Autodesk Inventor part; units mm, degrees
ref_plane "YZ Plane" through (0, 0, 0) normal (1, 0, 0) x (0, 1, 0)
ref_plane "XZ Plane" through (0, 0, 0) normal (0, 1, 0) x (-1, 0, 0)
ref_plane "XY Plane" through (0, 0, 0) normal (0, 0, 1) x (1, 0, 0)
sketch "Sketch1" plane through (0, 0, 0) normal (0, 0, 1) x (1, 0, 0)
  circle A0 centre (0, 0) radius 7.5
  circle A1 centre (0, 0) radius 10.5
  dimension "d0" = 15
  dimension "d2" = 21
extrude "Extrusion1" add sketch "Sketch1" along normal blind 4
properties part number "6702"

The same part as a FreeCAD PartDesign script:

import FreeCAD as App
import Part
import Sketcher
from FreeCAD import Vector

doc = App.newDocument("Part")
body = doc.addObject("PartDesign::Body", "Body")

sketch1 = body.newObject("Sketcher::SketchObject", "Sketch")
sketch1.AttachmentSupport = (doc.getObject("XY_Plane"), [""])
sketch1.MapMode = "FlatFace"
sketch1.addGeometry([
    Part.Circle(Vector(0, 0, 0), Vector(0, 0, 1), 10),
    Part.Circle(Vector(0, 0, 0), Vector(0, 0, 1), 8),
], False)
sketch1.addConstraint([
    Sketcher.Constraint("Coincident", 0, 3, -1, 1),
    Sketcher.Constraint("Coincident", 1, 3, -1, 1),
    Sketcher.Constraint("Diameter", 0, 21.0),
    Sketcher.Constraint("Diameter", 1, 15.0),
])
pad1 = body.newObject("PartDesign::Pad", "Pad")
pad1.Profile = sketch1
pad1.Length = 4

doc.recompute()
